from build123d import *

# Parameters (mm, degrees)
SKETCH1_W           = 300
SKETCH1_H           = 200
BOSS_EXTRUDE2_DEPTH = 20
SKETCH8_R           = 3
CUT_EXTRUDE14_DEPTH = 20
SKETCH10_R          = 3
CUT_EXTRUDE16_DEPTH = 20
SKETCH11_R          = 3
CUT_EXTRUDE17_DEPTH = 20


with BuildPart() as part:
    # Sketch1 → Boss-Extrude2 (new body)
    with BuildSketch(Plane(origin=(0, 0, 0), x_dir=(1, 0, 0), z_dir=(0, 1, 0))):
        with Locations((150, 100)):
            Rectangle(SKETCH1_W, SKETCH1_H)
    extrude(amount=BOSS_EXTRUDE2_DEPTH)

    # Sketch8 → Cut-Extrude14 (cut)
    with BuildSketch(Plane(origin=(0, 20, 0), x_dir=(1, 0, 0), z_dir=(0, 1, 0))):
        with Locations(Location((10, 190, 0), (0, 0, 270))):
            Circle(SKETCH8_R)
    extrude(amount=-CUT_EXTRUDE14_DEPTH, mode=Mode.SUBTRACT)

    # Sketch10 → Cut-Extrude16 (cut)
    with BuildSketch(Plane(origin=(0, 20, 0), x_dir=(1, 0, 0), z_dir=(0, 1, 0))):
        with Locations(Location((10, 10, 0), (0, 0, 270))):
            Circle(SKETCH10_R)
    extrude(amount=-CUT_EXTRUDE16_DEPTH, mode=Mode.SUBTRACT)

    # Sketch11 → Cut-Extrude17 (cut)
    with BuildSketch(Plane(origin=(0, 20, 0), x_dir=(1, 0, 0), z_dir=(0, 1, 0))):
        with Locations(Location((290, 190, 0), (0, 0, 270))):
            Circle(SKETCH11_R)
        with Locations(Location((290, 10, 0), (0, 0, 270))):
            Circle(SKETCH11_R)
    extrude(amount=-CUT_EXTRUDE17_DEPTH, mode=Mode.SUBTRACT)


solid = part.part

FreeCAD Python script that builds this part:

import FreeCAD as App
import Part
import Sketcher
from FreeCAD import Vector


def add_polygon(sketch, points):
    """Adds a closed chain of lines whose ends are joined by coincident constraints."""
    first, n = sketch.GeometryCount, len(points)
    for a, b in zip(points, points[1:] + points[:1]):
        sketch.addGeometry(Part.LineSegment(App.Vector(*a, 0), App.Vector(*b, 0)), False)
    for i in range(n):
        sketch.addConstraint(Sketcher.Constraint("Coincident", first + i, 2, first + (i + 1) % n, 1))

doc = App.newDocument("Part")
body = doc.addObject("PartDesign::Body", "Body")

# Sketch on XZ plane
sketch1 = body.newObject("Sketcher::SketchObject", "Sketch")
sketch1.AttachmentSupport = (doc.getObject("XZ_Plane"), [""])
sketch1.MapMode = "FlatFace"
add_polygon(sketch1, [(0, -200), (0, 0), (300, 0), (300, -200)])  # lines 0-3
sketch1.addConstraint(Sketcher.Constraint("Vertical", 0))
sketch1.addConstraint(Sketcher.Constraint("Horizontal", 1))
sketch1.addConstraint(Sketcher.Constraint("Vertical", 2))
sketch1.addConstraint(Sketcher.Constraint("Horizontal", 3))
sketch1.addConstraint(Sketcher.Constraint("Coincident", 0, 2, -1, 1))
sketch1.addConstraint(Sketcher.Constraint("DistanceX", 1, 1, 1, 2, 300.0))
sketch1.addConstraint(Sketcher.Constraint("DistanceY", 0, 1, 0, 2, 200.0))
pad1 = body.newObject("PartDesign::Pad", "Pad")
pad1.Profile = sketch1
pad1.Length = 20
pad1.Reversed = True

# Sketch on XZ plane
sketch2 = body.newObject("Sketcher::SketchObject", "Sketch001")
sketch2.AttachmentSupport = (doc.getObject("XZ_Plane"), [""])
sketch2.MapMode = "FlatFace"
sketch2.AttachmentOffset = App.Placement(Vector(0, 0, -20), App.Rotation())
sketch2.addGeometry(Part.Circle(Vector(10, -190, 0), Vector(0, 0, 1), 3), False)
sketch2.addConstraint(Sketcher.Constraint("Diameter", 0, 6.0))
sketch2.addConstraint(Sketcher.Constraint("DistanceX", -1, 1, 0, 3, 10.0))
sketch2.addConstraint(Sketcher.Constraint("DistanceY", 0, 3, -1, 1, 190.0))
pocket1 = body.newObject("PartDesign::Pocket", "Pocket")
pocket1.Profile = sketch2
pocket1.Length = 20
pocket1.Reversed = True

# Sketch on XZ plane
sketch3 = body.newObject("Sketcher::SketchObject", "Sketch002")
sketch3.AttachmentSupport = (doc.getObject("XZ_Plane"), [""])
sketch3.MapMode = "FlatFace"
sketch3.AttachmentOffset = App.Placement(Vector(0, 0, -20), App.Rotation())
sketch3.addGeometry(Part.Circle(Vector(10, -10, 0), Vector(0, 0, 1), 3), False)
sketch3.addConstraint(Sketcher.Constraint("Diameter", 0, 6.0))
sketch3.addConstraint(Sketcher.Constraint("DistanceX", -1, 1, 0, 3, 10.0))
sketch3.addConstraint(Sketcher.Constraint("DistanceY", 0, 3, -1, 1, 10.0))
pocket2 = body.newObject("PartDesign::Pocket", "Pocket001")
pocket2.Profile = sketch3
pocket2.Length = 20
pocket2.Reversed = True

# Sketch on XZ plane
sketch4 = body.newObject("Sketcher::SketchObject", "Sketch003")
sketch4.AttachmentSupport = (doc.getObject("XZ_Plane"), [""])
sketch4.MapMode = "FlatFace"
sketch4.AttachmentOffset = App.Placement(Vector(0, 0, -20), App.Rotation())
sketch4.addGeometry(Part.Circle(Vector(290, -190, 0), Vector(0, 0, 1), 3), False)
sketch4.addGeometry(Part.Circle(Vector(290, -10, 0), Vector(0, 0, 1), 3), False)
sketch4.addConstraint(Sketcher.Constraint("Equal", 0, 1))
sketch4.addConstraint(Sketcher.Constraint("Vertical", 0, 3, 1, 3))
sketch4.addConstraint(Sketcher.Constraint("Diameter", 0, 6.0))
sketch4.addConstraint(Sketcher.Constraint("DistanceX", -1, 1, 0, 3, 290.0))
sketch4.addConstraint(Sketcher.Constraint("DistanceY", 0, 3, -1, 1, 190.0))
sketch4.addConstraint(Sketcher.Constraint("DistanceY", 1, 3, -1, 1, 10.0))
pocket3 = body.newObject("PartDesign::Pocket", "Pocket002")
pocket3.Profile = sketch4
pocket3.Length = 20
pocket3.Reversed = True

doc.recompute()
